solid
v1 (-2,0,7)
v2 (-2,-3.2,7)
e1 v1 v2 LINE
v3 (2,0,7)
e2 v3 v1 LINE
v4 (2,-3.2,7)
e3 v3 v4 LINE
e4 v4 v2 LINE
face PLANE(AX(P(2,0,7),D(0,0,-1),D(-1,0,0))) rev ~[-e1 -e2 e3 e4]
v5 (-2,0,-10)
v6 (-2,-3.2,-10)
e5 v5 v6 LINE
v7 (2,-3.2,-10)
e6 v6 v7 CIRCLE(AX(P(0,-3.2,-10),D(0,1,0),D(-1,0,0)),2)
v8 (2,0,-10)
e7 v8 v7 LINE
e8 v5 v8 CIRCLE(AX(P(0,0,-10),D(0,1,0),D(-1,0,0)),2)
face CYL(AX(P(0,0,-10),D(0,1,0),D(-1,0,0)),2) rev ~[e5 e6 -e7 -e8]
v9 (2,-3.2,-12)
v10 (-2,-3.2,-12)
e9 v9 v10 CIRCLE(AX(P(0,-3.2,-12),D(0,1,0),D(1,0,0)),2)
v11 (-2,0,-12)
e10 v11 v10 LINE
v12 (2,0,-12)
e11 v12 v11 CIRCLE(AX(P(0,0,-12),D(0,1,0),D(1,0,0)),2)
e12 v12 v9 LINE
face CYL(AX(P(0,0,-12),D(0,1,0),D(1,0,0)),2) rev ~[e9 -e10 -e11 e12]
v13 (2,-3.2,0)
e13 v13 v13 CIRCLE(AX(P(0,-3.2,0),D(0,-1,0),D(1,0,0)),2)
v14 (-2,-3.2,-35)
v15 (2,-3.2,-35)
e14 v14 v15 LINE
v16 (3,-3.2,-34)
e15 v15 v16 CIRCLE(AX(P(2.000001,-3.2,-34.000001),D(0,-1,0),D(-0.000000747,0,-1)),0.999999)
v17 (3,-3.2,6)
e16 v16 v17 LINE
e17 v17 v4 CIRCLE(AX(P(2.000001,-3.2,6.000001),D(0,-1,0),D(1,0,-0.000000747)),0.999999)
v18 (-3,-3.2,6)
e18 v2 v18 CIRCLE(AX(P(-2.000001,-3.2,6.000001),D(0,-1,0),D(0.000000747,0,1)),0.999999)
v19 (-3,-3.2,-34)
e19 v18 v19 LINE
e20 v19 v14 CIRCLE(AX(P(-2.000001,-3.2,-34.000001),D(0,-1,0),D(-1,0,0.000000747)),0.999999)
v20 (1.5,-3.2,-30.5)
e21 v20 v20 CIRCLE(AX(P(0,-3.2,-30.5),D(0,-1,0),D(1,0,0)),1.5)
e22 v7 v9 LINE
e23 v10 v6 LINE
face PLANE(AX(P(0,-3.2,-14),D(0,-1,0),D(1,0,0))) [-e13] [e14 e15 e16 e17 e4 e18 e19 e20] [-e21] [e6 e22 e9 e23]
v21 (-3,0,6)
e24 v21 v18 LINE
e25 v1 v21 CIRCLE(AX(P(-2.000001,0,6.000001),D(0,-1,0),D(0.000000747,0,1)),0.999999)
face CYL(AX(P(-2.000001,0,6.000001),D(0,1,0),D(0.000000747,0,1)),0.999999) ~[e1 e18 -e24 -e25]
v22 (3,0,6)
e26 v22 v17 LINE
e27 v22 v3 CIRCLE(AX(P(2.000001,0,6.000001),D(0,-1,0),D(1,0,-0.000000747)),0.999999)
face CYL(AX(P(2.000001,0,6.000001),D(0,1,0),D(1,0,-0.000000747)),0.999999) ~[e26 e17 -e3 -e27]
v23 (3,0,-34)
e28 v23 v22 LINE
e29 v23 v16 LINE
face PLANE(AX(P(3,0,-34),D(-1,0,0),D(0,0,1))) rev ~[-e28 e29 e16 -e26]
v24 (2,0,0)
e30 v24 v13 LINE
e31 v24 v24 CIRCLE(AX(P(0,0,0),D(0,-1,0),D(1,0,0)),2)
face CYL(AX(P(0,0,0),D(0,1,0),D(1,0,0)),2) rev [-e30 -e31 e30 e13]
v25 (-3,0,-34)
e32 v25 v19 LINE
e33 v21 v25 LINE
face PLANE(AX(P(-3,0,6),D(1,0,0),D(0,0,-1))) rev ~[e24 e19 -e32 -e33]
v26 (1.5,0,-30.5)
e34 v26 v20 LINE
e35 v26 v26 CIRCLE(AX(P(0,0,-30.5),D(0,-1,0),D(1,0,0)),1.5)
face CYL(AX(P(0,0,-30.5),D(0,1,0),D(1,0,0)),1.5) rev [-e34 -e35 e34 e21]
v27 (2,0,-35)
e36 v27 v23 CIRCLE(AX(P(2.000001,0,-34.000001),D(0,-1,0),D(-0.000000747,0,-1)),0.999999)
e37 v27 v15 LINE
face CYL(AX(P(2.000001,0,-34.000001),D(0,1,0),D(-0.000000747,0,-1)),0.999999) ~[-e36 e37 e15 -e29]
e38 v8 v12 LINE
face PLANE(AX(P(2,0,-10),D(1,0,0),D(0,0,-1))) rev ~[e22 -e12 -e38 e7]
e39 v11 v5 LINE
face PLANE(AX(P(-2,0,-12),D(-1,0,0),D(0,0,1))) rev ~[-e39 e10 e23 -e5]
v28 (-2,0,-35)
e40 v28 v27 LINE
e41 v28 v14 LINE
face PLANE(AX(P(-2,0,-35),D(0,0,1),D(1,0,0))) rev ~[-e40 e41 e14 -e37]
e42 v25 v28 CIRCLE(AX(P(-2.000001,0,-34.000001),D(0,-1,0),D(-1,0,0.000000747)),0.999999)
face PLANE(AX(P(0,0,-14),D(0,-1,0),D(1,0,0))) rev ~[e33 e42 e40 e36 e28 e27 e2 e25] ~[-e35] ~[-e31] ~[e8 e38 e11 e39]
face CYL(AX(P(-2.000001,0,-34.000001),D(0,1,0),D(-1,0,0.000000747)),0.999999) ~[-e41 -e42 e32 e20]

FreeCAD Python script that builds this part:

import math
import FreeCAD as App
import Part
import Sketcher

V = App.Vector
Q = App.Units.Quantity

doc = App.newDocument("Part")
body = doc.addObject("PartDesign::Body", "Body")

# Sketch on XZ plane
sketch1 = doc.addObject("Sketcher::SketchObject", "Sketch")
body.addObject(sketch1)
sketch1.AttachmentSupport = (doc.XZ_Plane, [""])
sketch1.MapMode = "FlatFace"
sketch1.addGeometry([
    Part.LineSegment(V(3, -34, 0), V(3, 6, 0)),  # 0
    Part.ArcOfCircle(Part.Circle(V(2, 6, 0), V(0, 0, 1), 1), math.radians(0), math.radians(90)),  # 1
    Part.LineSegment(V(2, 7, 0), V(-2, 7, 0)),  # 2
    Part.ArcOfCircle(Part.Circle(V(-2, 6, 0), V(0, 0, 1), 1), math.radians(90), math.radians(180)),  # 3
    Part.LineSegment(V(-3, 6, 0), V(-3, -34, 0)),  # 4
    Part.ArcOfCircle(Part.Circle(V(-2, -34, 0), V(0, 0, 1), 1), math.radians(180), math.radians(270)),  # 5
    Part.LineSegment(V(-2, -35, 0), V(2, -35, 0)),  # 6
    Part.ArcOfCircle(Part.Circle(V(2, -34, 0), V(0, 0, 1), 1), math.radians(-90), math.radians(0)),  # 7
    Part.Circle(V(0, -30.5, 0), V(0, 0, 1), 1.5),  # 8
    Part.LineSegment(V(-2, -12, 0), V(-2, -10, 0)),  # 9
    Part.ArcOfCircle(Part.Circle(V(0, -10, 0), V(0, 0, 1), 2), math.radians(0), math.radians(180)),  # 10
    Part.LineSegment(V(2, -10, 0), V(2, -12, 0)),  # 11
    Part.ArcOfCircle(Part.Circle(V(0, -12, 0), V(0, 0, 1), 2), math.radians(180), math.radians(360)),  # 12
    Part.Circle(V(0, 0, 0), V(0, 0, 1), 2),  # 13
], False)
sketch1.addConstraint([
    Sketcher.Constraint("Tangent", 0, 2, 1, 1),
    Sketcher.Constraint("Tangent", 1, 2, 2, 1),
    Sketcher.Constraint("Tangent", 2, 2, 3, 1),
    Sketcher.Constraint("Tangent", 3, 2, 4, 1),
    Sketcher.Constraint("Tangent", 4, 2, 5, 1),
    Sketcher.Constraint("Tangent", 5, 2, 6, 1),
    Sketcher.Constraint("Tangent", 6, 2, 7, 1),
    Sketcher.Constraint("Tangent", 7, 2, 0, 1),
    Sketcher.Constraint("Tangent", 9, 2, 10, 2),
    Sketcher.Constraint("Tangent", 10, 1, 11, 1),
    Sketcher.Constraint("Tangent", 11, 2, 12, 2),
    Sketcher.Constraint("Tangent", 12, 1, 9, 1),
    Sketcher.Constraint("Vertical", 0),
    Sketcher.Constraint("Horizontal", 2),
    Sketcher.Constraint("Vertical", 4),
    Sketcher.Constraint("Horizontal", 6),
    Sketcher.Constraint("Vertical", 9),
    Sketcher.Constraint("Vertical", 11),
    Sketcher.Constraint("Coincident", 13, 3, -1, 1),
    Sketcher.Constraint("Equal", 1, 3),
    Sketcher.Constraint("Equal", 3, 5),
    Sketcher.Constraint("Equal", 5, 7),
    Sketcher.Constraint("Equal", 12, 13),
    Sketcher.Constraint("PointOnObject", 8, 3, -2),
    Sketcher.Constraint("PointOnObject", 10, 3, -2),
    Sketcher.Constraint("Vertical", 5, 2, 9, 2),
    Sketcher.Constraint("Vertical", 6, 2, 10, 1),
    Sketcher.Constraint("Diameter", 8, Q("3 mm")),
    Sketcher.Constraint("Diameter", 13, Q("4 mm")),
    Sketcher.Constraint("Radius", 1, Q("0.999999 mm")),
    Sketcher.Constraint("DistanceY", 0, 1, 0, 2, Q("40 mm")),
    Sketcher.Constraint("DistanceY", 9, 1, 9, 2, Q("2 mm")),
    Sketcher.Constraint("DistanceY", -1, 1, 1, 3, Q("6.000001 mm")),
    Sketcher.Constraint("DistanceY", 10, 3, -1, 1, Q("10 mm")),
    Sketcher.Constraint("DistanceY", 8, 3, -1, 1, Q("30.5 mm")),
])
pad1 = doc.addObject("PartDesign::Pad", "Pad")
body.addObject(pad1)
pad1.Profile = sketch1
pad1.Length = 3.2

doc.recompute()
